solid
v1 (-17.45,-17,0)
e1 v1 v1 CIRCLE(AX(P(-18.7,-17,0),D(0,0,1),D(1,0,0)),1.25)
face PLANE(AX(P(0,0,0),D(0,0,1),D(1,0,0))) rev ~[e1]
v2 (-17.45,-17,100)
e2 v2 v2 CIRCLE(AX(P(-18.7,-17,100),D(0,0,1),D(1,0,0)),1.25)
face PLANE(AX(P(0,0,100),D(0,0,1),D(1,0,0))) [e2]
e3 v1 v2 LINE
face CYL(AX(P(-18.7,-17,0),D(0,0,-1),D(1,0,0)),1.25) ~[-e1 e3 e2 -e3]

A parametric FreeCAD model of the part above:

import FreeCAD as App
import Part
import Sketcher

doc = App.newDocument("Part")
body = doc.addObject("PartDesign::Body", "Body")

# Sketch on XY plane
sketch1 = body.newObject("Sketcher::SketchObject", "Sketch")
sketch1.AttachmentSupport = (doc.getObject("XY_Plane"), [""])
sketch1.MapMode = "FlatFace"
sketch1.addGeometry(Part.Circle(App.Vector(-18.7, -17, 0), App.Vector(0, 0, 1), 1.25), False)
sketch1.addConstraint([
    Sketcher.Constraint("Diameter", 0, 2.5),
    Sketcher.Constraint("DistanceY", 0, 3, -1, 1, 17.0),
    Sketcher.Constraint("DistanceX", 0, 3, -1, 1, 18.7),
])
pad1 = body.newObject("PartDesign::Pad", "Pad")
pad1.Profile = sketch1
pad1.Length = 100

doc.recompute()
